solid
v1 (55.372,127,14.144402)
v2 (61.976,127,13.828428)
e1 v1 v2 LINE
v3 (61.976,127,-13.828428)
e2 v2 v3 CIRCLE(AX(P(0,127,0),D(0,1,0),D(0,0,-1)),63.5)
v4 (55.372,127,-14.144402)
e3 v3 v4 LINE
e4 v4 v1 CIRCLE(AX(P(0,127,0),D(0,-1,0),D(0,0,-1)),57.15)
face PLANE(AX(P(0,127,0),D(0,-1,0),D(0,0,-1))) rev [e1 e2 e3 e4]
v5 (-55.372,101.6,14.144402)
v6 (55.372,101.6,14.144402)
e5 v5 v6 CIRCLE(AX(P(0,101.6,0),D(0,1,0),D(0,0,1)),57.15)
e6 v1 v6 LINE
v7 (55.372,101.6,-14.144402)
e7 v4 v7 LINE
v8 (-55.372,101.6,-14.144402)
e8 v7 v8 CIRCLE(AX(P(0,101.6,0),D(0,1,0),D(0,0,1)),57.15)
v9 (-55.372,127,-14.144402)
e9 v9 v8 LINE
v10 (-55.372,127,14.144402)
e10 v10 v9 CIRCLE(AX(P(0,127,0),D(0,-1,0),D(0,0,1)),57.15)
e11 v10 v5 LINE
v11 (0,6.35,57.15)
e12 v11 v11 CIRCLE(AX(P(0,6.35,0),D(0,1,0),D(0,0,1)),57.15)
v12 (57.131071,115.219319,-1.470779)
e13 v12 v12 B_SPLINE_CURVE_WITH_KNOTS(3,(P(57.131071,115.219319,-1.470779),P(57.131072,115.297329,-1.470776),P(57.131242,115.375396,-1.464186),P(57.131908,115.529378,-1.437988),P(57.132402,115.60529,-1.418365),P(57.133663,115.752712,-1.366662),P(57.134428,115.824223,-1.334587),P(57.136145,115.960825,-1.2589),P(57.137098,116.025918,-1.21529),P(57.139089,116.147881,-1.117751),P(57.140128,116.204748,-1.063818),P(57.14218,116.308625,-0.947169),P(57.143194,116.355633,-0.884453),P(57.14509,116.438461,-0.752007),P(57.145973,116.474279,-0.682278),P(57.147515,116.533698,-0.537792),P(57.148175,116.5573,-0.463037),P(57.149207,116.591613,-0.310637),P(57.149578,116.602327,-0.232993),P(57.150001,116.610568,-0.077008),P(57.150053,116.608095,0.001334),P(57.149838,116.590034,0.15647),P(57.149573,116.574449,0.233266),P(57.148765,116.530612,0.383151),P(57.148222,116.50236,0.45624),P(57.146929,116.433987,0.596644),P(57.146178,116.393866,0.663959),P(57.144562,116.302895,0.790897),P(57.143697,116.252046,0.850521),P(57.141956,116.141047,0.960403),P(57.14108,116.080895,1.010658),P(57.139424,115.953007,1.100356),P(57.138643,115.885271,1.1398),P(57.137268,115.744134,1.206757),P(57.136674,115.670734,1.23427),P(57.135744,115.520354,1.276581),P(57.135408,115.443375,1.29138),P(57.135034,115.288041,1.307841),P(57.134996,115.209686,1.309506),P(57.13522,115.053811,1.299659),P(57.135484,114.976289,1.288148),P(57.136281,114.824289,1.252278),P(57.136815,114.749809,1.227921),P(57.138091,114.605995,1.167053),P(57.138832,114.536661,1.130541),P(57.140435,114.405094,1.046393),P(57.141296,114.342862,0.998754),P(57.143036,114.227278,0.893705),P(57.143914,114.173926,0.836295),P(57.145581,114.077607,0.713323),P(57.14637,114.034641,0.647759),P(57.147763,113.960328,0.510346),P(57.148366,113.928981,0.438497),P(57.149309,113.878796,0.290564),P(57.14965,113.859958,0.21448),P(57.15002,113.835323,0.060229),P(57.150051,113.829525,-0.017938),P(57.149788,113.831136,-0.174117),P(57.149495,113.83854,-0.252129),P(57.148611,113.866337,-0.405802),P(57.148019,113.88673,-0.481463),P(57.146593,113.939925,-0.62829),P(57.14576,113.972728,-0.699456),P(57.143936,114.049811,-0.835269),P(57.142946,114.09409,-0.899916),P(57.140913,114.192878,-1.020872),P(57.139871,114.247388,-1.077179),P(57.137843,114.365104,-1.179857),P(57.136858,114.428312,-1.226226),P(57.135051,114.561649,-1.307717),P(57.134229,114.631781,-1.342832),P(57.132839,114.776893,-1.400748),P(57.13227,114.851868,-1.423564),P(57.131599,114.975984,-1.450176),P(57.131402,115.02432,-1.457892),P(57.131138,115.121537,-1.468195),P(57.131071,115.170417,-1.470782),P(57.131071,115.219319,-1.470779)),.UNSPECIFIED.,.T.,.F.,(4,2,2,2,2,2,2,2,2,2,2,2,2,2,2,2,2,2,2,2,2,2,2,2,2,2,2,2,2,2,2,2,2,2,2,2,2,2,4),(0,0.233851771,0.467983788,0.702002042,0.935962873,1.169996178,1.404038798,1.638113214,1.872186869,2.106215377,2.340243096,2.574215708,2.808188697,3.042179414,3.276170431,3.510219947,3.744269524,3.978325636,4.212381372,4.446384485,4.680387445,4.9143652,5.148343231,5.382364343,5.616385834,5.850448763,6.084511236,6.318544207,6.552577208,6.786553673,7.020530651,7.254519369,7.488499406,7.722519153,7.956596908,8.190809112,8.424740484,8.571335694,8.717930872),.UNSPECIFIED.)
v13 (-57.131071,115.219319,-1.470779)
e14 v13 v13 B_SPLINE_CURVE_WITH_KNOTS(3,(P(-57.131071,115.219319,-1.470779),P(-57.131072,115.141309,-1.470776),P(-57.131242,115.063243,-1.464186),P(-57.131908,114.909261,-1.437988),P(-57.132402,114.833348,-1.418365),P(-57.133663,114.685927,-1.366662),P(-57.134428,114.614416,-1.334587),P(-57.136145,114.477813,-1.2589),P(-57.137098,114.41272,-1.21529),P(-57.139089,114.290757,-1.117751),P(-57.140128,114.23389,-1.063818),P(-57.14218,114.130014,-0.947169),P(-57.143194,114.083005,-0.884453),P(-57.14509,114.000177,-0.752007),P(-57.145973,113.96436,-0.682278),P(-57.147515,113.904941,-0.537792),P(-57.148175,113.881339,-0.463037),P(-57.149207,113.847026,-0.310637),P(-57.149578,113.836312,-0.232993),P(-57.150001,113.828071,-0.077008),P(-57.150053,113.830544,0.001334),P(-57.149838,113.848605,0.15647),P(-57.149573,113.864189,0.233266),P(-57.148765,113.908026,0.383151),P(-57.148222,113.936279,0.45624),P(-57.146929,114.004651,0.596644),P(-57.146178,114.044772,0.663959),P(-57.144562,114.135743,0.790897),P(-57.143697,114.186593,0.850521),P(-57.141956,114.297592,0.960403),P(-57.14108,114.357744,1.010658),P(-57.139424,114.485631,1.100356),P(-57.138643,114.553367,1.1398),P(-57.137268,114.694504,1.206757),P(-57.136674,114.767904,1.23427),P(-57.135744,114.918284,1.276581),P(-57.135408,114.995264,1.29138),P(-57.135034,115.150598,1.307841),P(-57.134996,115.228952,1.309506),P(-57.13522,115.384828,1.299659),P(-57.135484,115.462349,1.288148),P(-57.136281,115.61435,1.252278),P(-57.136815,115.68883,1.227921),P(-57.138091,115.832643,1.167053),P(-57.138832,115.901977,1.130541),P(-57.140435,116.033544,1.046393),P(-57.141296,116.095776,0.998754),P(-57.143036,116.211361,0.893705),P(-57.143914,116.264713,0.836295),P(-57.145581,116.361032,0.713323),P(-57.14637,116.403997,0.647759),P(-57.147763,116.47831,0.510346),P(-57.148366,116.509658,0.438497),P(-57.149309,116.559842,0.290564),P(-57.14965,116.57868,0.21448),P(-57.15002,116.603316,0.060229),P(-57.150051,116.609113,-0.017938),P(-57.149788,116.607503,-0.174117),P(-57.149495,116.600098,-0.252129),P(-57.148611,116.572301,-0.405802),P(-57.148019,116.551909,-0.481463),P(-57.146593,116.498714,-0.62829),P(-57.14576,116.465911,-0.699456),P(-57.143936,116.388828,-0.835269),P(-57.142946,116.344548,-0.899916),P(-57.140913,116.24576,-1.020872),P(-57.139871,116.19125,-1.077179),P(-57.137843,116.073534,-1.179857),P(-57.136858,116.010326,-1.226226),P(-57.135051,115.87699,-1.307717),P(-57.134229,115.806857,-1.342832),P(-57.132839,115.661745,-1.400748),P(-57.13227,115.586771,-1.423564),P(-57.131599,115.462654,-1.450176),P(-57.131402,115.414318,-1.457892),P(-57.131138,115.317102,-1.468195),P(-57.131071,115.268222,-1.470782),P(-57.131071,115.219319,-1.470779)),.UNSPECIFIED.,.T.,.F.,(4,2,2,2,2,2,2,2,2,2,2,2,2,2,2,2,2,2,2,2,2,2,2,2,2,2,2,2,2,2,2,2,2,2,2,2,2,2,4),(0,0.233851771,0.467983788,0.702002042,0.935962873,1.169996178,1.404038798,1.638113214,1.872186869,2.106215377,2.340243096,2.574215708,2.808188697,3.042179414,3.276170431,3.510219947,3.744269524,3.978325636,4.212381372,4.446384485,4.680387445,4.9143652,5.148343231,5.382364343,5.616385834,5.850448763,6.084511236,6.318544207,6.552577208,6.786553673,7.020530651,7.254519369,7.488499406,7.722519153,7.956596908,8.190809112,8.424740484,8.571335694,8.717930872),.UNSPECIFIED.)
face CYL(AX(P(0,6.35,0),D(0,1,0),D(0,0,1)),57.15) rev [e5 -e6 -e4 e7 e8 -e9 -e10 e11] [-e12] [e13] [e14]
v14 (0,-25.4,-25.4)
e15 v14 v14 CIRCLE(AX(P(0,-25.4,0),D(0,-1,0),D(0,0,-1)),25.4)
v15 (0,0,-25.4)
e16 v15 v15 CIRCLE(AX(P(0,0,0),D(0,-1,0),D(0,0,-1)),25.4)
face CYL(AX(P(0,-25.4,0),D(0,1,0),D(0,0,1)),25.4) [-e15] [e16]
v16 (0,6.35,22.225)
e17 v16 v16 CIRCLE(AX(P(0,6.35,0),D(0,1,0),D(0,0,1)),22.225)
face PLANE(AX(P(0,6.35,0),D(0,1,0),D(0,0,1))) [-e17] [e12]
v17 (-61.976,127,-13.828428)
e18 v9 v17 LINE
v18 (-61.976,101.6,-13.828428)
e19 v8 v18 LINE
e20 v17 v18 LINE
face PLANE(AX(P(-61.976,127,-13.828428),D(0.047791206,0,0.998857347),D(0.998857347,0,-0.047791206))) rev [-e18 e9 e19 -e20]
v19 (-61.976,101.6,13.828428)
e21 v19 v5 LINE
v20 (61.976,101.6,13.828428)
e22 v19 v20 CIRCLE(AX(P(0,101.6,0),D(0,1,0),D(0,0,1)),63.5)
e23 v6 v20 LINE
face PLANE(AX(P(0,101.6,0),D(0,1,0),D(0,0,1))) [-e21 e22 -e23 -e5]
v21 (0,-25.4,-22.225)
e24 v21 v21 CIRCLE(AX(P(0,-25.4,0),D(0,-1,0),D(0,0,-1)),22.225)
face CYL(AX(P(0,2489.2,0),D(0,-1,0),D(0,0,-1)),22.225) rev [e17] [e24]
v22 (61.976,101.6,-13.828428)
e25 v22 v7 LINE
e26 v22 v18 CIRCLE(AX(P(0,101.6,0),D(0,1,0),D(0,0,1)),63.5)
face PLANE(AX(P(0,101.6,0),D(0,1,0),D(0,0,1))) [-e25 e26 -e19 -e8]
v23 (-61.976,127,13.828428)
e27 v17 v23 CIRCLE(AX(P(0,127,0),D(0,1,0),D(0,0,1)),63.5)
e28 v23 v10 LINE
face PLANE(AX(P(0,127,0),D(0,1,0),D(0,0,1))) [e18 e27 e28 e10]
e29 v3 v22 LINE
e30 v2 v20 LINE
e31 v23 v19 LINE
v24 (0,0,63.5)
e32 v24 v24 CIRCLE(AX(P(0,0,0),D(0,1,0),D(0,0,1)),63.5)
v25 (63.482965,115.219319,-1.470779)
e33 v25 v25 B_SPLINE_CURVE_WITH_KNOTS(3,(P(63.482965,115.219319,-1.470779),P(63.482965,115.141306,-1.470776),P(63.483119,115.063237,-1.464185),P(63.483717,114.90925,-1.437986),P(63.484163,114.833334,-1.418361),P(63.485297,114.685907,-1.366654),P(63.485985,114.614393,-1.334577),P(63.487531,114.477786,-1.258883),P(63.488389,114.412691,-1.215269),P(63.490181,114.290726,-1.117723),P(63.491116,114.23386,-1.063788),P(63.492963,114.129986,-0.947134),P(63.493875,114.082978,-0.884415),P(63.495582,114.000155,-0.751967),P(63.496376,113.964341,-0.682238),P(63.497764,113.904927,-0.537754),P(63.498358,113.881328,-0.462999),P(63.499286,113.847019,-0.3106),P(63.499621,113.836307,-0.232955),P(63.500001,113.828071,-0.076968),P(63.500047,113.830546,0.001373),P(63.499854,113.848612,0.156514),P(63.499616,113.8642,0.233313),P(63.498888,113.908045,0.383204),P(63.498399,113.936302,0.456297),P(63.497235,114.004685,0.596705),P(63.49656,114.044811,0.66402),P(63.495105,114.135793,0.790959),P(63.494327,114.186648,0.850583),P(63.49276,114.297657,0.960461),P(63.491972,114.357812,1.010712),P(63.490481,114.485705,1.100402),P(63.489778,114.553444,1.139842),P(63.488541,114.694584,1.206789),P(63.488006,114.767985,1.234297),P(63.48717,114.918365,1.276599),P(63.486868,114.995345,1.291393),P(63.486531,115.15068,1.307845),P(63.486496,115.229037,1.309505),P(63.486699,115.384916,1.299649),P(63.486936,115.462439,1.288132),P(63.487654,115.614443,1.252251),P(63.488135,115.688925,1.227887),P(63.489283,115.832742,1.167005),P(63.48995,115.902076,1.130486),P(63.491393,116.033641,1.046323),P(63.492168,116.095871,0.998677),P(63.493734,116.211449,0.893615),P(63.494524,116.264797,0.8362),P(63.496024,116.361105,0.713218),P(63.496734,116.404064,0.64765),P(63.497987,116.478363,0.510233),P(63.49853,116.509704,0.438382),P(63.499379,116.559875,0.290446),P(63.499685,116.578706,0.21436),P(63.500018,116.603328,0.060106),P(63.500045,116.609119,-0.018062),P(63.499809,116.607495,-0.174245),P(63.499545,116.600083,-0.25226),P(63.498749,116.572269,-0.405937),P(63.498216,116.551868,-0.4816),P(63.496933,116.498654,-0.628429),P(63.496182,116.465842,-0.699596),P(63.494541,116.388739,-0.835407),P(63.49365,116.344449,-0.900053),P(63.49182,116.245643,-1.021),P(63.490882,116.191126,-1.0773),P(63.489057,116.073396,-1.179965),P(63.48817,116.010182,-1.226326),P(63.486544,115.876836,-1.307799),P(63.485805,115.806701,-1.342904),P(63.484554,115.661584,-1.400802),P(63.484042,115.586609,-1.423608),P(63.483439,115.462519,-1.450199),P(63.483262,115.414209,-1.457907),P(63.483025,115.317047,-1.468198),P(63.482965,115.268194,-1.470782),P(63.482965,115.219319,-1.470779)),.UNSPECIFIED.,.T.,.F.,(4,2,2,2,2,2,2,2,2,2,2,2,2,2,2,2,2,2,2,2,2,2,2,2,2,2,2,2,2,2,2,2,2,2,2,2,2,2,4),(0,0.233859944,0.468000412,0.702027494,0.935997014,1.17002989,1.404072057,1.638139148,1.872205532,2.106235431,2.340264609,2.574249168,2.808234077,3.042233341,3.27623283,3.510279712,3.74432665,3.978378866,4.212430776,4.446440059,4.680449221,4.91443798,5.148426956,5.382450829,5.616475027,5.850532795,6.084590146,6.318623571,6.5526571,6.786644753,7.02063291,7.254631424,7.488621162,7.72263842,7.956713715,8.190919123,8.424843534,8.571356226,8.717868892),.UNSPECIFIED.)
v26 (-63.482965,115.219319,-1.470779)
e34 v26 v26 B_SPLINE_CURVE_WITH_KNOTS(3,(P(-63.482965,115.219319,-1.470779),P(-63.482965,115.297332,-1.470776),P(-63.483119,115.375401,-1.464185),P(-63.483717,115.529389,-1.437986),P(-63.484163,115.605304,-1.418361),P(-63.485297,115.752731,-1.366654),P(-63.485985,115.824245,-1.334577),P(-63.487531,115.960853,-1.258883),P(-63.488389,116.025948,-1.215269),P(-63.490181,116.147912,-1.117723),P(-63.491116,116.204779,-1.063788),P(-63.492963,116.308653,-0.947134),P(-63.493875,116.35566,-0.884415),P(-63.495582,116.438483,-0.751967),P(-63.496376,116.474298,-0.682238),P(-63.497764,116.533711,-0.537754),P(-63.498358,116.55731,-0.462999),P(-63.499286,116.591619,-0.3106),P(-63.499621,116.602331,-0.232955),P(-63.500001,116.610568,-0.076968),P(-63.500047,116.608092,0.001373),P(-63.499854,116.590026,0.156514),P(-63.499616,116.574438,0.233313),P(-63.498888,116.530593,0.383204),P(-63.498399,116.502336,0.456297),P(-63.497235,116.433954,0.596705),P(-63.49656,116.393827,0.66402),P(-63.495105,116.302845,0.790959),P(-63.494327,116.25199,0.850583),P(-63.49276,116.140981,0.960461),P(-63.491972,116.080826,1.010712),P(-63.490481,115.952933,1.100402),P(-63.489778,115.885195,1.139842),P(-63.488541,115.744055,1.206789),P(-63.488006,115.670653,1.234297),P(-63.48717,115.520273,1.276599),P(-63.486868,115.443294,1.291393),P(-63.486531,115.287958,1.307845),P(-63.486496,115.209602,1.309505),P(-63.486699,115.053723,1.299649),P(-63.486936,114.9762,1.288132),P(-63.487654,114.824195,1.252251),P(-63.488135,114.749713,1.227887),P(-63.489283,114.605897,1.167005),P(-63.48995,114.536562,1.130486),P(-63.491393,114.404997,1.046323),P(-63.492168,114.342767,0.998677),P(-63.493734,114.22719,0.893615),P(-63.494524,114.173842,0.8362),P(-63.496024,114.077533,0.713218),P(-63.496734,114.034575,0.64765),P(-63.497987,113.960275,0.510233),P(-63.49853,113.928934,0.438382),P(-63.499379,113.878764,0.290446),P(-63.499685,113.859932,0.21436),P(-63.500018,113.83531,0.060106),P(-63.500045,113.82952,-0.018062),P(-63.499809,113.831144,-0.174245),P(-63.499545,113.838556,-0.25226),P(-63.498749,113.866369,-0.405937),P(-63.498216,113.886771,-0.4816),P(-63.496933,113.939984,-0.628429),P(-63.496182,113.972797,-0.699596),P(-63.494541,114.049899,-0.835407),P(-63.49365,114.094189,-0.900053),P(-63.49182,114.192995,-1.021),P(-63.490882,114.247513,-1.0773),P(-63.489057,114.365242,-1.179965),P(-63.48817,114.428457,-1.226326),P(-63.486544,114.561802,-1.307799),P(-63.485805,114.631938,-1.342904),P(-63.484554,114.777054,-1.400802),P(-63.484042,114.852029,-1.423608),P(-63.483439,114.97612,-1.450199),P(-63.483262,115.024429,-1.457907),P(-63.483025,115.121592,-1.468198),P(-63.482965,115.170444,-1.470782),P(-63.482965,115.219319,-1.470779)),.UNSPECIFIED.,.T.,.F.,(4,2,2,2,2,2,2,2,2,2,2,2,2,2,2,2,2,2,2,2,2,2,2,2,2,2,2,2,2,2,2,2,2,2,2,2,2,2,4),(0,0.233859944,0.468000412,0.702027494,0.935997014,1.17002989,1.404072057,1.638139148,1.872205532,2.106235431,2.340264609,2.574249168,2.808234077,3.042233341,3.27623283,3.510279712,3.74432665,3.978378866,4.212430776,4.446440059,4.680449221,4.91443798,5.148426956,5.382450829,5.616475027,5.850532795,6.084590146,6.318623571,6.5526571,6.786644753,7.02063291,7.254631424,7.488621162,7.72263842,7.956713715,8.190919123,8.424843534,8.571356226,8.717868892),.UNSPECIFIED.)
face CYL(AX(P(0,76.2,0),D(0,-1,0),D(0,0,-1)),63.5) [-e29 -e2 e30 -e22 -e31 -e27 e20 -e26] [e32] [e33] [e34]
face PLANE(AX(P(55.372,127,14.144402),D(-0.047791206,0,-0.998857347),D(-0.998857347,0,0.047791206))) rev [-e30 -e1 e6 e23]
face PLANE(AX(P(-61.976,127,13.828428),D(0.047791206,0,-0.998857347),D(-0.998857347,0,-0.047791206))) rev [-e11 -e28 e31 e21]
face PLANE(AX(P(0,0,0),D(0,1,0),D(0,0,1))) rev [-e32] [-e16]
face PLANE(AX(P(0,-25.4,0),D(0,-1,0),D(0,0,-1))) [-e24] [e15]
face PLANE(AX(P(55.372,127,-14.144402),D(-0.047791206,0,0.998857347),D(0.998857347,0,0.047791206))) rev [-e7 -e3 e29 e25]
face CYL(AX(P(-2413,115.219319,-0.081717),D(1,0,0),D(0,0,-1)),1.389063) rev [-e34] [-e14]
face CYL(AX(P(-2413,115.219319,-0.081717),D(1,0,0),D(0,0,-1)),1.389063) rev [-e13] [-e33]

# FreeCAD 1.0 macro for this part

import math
import FreeCAD as App
import Part
import Sketcher

V = App.Vector
Q = App.Units.Quantity

doc = App.newDocument("Part")
body = doc.addObject("PartDesign::Body", "Body")

sketch1 = body.newObject("Sketcher::SketchObject", "Sketch")
sketch1.AttachmentSupport = (doc.getObject("XZ_Plane"), [""])
sketch1.MapMode = "FlatFace"
sketch1.addGeometry(Part.Circle(V(0, 0, 0), V(0, 0, 1), 64), False)
sketch1.addConstraint([
    Sketcher.Constraint("Coincident", 0, 3, -1, 1),
    Sketcher.Constraint("Diameter", 0, Q("5 in")),
])
pad1 = body.newObject("PartDesign::Pad", "Pad")
pad1.Profile = sketch1
pad1.Length = Q("3 in")
pad1.Reversed = True

sketch2 = body.newObject("Sketcher::SketchObject", "Sketch001")
sketch2.AttachmentSupport = (doc.getObject("XZ_Plane"), [""])
sketch2.MapMode = "FlatFace"
sketch2.AttachmentOffset = App.Placement(V(0, 0, -3 * 25.4), App.Rotation())
sketch2.addGeometry(Part.Circle(V(0, 0, 0), V(0, 0, 1), 57), False)
sketch2.addConstraint([
    Sketcher.Constraint("Coincident", 0, 3, -1, 1),
    Sketcher.Constraint("Diameter", 0, Q("4.5 in")),
])
pocket1 = body.newObject("PartDesign::Pocket", "Pocket")
pocket1.Profile = sketch2
pocket1.Length = Q("2.75 in")
pocket1.Reversed = True

sketch3 = body.newObject("Sketcher::SketchObject", "Sketch002")
sketch3.AttachmentSupport = (doc.getObject("XZ_Plane"), [""])
sketch3.MapMode = "FlatFace"
sketch3.addGeometry(Part.Circle(V(0, 0, 0), V(0, 0, 1), 25), False)
sketch3.addConstraint([
    Sketcher.Constraint("Coincident", 0, 3, -1, 1),
    Sketcher.Constraint("Diameter", 0, Q("2 in")),
])
pad2 = body.newObject("PartDesign::Pad", "Pad001")
pad2.Profile = sketch3
pad2.Length = Q("1 in")

sketch4 = body.newObject("Sketcher::SketchObject", "Sketch003")
sketch4.AttachmentSupport = (doc.getObject("XZ_Plane"), [""])
sketch4.MapMode = "FlatFace"
sketch4.AttachmentOffset = App.Placement(V(0, 0, 1 * 25.4), App.Rotation())
sketch4.addGeometry(Part.Circle(V(0, 0, 0), V(0, 0, 1), 22), False)
sketch4.addConstraint([
    Sketcher.Constraint("Coincident", 0, 3, -1, 1),
    Sketcher.Constraint("Diameter", 0, Q("1.75 in")),
])
pocket2 = body.newObject("PartDesign::Pocket", "Pocket001")
pocket2.Profile = sketch4
pocket2.Length = Q("99 in")

sketch5 = body.newObject("Sketcher::SketchObject", "Sketch004")
sketch5.AttachmentSupport = (doc.getObject("XZ_Plane"), [""])
sketch5.MapMode = "FlatFace"
sketch5.AttachmentOffset = App.Placement(V(0, 0, -3 * 25.4), App.Rotation())
sketch5.addGeometry(Part.Circle(V(0, 0, 0), V(0, 0, 1), 64), False)
sketch5.addConstraint([
    Sketcher.Constraint("Coincident", 0, 3, -1, 1),
    Sketcher.Constraint("Diameter", 0, Q("5 in")),
])
pad3 = body.newObject("PartDesign::Pad", "Pad002")
pad3.Profile = sketch5
pad3.Length = Q("1 in")
pad3.Reversed = True

sketch6 = body.newObject("Sketcher::SketchObject", "Sketch005")
sketch6.AttachmentSupport = (doc.getObject("XZ_Plane"), [""])
sketch6.MapMode = "FlatFace"
sketch6.AttachmentOffset = App.Placement(V(0, 0, -4 * 25.4), App.Rotation())
sketch6.addGeometry(Part.Circle(V(0, 0, 0), V(0, 0, 1), 57), False)
sketch6.addConstraint([
    Sketcher.Constraint("Coincident", 0, 3, -1, 1),
    Sketcher.Constraint("Diameter", 0, Q("4.5 in")),
])
pocket3 = body.newObject("PartDesign::Pocket", "Pocket002")
pocket3.Profile = sketch6
pocket3.Length = Q("2 in")
pocket3.Reversed = True

sketch7 = body.newObject("Sketcher::SketchObject", "Sketch006")
sketch7.AttachmentSupport = (doc.getObject("XZ_Plane"), [""])
sketch7.MapMode = "FlatFace"
sketch7.AttachmentOffset = App.Placement(V(0, 0, -4 * 25.4), App.Rotation())
sketch7.addGeometry([
    Part.LineSegment(V(-55, -14, 0), V(-62, -14, 0)),
    Part.ArcOfCircle(Part.Circle(V(0, 0, 0), V(0, 0, 1), 63), math.radians(167), math.radians(193)),
    Part.LineSegment(V(-62, 14, 0), V(-55, 14, 0)),
    Part.ArcOfCircle(Part.Circle(V(0, 0, 0), V(0, 0, 1), 57), math.radians(166), math.radians(194)),
], False)
sketch7.addConstraint([
    Sketcher.Constraint("Coincident", 0, 2, 1, 2),
    Sketcher.Constraint("Coincident", 1, 1, 2, 1),
    Sketcher.Constraint("Coincident", 2, 2, 3, 1),
    Sketcher.Constraint("Coincident", 3, 2, 0, 1),
    Sketcher.Constraint("Coincident", 1, 3, -1, 1),
    Sketcher.Constraint("Coincident", 3, 3, -1, 1),
    Sketcher.Constraint("Vertical", 0, 2, 1, 1),
    Sketcher.Constraint("Vertical", 2, 2, 3, 2),
    Sketcher.Constraint("Radius", 1, Q("2.5 in")),
    Sketcher.Constraint("Radius", 3, Q("2.2499999 in")),
    Sketcher.Constraint("DistanceX", 0, 2, -1, 1, Q("2.44 in")),
    Sketcher.Constraint("DistanceX", 2, 2, -1, 1, Q("2.18 in")),
])
pad4 = body.newObject("PartDesign::Pad", "Pad003")
pad4.Profile = sketch7
pad4.Length = Q("1 in")
pad4.Reversed = True

sketch8 = body.newObject("Sketcher::SketchObject", "Sketch007")
sketch8.AttachmentSupport = (doc.getObject("XZ_Plane"), [""])
sketch8.MapMode = "FlatFace"
sketch8.AttachmentOffset = App.Placement(V(0, 0, -4 * 25.4), App.Rotation())
sketch8.addGeometry([
    Part.LineSegment(V(62, -14, 0), V(55, -14, 0)),
    Part.ArcOfCircle(Part.Circle(V(0, 0, 0), V(0, 0, 1), 57), math.radians(-14), math.radians(14)),
    Part.LineSegment(V(55, 14, 0), V(62, 14, 0)),
    Part.ArcOfCircle(Part.Circle(V(0, 0, 0), V(0, 0, 1), 63), math.radians(-13), math.radians(13)),
], False)
sketch8.addConstraint([
    Sketcher.Constraint("Coincident", 0, 2, 1, 1),
    Sketcher.Constraint("Coincident", 1, 2, 2, 1),
    Sketcher.Constraint("Coincident", 2, 2, 3, 2),
    Sketcher.Constraint("Coincident", 3, 1, 0, 1),
    Sketcher.Constraint("Coincident", 1, 3, -1, 1),
    Sketcher.Constraint("Coincident", 3, 3, -1, 1),
    Sketcher.Constraint("Vertical", 0, 2, 1, 2),
    Sketcher.Constraint("Vertical", 2, 2, 3, 1),
    Sketcher.Constraint("Radius", 3, Q("2.5 in")),
    Sketcher.Constraint("Radius", 1, Q("2.2499999 in")),
    Sketcher.Constraint("DistanceX", -1, 1, 0, 2, Q("2.18 in")),
    Sketcher.Constraint("DistanceX", -1, 1, 2, 2, Q("2.44 in")),
])
pad5 = body.newObject("PartDesign::Pad", "Pad004")
pad5.Profile = sketch8
pad5.Length = Q("1 in")
pad5.Reversed = True

sketch9 = body.newObject("Sketcher::SketchObject", "Sketch008")
sketch9.AttachmentSupport = (doc.getObject("YZ_Plane"), [""])
sketch9.MapMode = "FlatFace"
sketch9.AttachmentOffset = App.Placement(V(0, 0, 4 * 25.4), App.Rotation())
sketch9.addGeometry(Part.Circle(V(115.2, -0.1, 0), V(0, 0, 1), 1.4), False)
sketch9.addConstraint([
    Sketcher.Constraint("Diameter", 0, Q("0.109375 in")),
    Sketcher.Constraint("DistanceX", -1, 1, 0, 3, Q("115.219319 mm")),
    Sketcher.Constraint("DistanceY", 0, 3, -1, 1, Q("0.081717 mm")),
])
pocket4 = body.newObject("PartDesign::Pocket", "Pocket003")
pocket4.Profile = sketch9
pocket4.Length = Q("99 in")

doc.recompute()
